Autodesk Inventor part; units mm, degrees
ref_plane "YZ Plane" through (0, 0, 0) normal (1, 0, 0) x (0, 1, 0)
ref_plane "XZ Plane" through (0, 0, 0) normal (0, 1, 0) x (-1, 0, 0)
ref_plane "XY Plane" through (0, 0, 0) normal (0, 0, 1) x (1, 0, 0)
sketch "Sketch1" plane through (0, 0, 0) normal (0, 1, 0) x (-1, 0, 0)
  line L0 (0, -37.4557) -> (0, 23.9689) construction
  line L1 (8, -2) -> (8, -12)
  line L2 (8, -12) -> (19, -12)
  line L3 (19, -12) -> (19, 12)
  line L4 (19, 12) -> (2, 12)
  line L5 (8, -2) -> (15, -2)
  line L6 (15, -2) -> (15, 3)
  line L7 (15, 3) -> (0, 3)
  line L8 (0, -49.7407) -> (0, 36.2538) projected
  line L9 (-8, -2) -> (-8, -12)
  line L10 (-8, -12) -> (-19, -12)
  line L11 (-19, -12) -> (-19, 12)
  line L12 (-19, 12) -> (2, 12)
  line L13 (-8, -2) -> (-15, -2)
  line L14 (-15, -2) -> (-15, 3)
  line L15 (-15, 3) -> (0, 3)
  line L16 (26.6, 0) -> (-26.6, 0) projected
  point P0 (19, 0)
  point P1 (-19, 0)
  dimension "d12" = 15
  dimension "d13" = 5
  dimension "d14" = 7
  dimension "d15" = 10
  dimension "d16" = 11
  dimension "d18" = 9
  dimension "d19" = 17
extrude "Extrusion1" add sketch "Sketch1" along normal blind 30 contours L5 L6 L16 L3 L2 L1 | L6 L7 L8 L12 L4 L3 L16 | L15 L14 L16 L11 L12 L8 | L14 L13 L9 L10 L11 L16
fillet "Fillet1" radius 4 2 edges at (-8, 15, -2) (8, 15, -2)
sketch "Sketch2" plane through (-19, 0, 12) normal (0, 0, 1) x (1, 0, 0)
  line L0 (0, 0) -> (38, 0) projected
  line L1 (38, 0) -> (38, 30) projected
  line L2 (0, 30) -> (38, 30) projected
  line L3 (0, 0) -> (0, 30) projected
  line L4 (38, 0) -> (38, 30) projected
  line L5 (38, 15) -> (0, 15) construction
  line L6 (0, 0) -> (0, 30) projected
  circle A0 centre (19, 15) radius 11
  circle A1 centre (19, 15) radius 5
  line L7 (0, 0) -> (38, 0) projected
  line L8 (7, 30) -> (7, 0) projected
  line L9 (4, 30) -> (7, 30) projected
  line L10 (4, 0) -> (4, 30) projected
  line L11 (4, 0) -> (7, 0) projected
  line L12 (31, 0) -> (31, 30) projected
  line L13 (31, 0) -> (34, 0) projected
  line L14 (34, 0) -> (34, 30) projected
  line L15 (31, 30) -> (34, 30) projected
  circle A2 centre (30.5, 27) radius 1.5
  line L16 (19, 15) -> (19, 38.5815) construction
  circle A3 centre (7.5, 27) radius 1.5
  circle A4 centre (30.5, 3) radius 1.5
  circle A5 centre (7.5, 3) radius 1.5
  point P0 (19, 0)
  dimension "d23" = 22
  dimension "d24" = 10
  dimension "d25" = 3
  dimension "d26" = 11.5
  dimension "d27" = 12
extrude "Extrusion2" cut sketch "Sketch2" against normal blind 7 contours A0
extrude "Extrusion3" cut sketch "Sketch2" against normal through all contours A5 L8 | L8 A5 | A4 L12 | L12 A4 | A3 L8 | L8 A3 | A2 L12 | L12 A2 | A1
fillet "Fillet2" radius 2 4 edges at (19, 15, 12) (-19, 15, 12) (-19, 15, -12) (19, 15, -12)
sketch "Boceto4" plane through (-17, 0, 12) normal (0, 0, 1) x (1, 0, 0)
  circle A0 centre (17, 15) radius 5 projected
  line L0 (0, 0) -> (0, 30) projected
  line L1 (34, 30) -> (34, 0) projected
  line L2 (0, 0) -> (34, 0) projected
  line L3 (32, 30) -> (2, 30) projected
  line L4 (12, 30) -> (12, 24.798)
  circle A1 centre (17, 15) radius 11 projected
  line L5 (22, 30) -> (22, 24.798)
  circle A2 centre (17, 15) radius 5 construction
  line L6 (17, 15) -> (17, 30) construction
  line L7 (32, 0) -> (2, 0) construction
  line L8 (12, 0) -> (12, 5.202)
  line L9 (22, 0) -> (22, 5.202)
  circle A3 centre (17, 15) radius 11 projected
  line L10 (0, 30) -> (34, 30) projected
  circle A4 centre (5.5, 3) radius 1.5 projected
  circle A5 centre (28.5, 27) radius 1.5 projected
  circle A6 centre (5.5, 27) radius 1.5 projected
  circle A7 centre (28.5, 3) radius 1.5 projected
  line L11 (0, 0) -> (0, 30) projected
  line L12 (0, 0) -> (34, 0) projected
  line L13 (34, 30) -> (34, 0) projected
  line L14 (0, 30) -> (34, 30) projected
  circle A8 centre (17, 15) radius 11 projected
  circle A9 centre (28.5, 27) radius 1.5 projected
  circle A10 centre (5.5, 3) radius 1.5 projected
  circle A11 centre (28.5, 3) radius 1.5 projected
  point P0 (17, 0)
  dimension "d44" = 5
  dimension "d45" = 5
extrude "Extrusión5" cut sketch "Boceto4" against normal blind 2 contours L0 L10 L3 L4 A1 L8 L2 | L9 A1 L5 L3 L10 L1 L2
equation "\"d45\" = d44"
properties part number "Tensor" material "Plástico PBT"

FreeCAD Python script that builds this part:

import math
import FreeCAD as App
import Part
import Sketcher

V = App.Vector


def edges_at(feature, points):
    """Names of the edges that pass closest to the given points."""
    edges = feature.Shape.Edges
    near = lambda p: min(range(len(edges)), key=lambda i: edges[i].distToShape(Part.Vertex(*p))[0])
    return sorted({f"Edge{near(p) + 1}" for p in points})


def add_polygon(sketch, points):
    """Adds a closed chain of lines whose ends are joined by coincident constraints."""
    first, n = sketch.GeometryCount, len(points)
    for a, b in zip(points, points[1:] + points[:1]):
        sketch.addGeometry(Part.LineSegment(App.Vector(*a, 0), App.Vector(*b, 0)), False)
    for i in range(n):
        sketch.addConstraint(Sketcher.Constraint("Coincident", first + i, 2, first + (i + 1) % n, 1))

doc = App.newDocument("Part")
params = doc.addObject("Spreadsheet::Sheet", "Params")
for row, (alias, value) in enumerate([
    ("sketch1_width", "7 mm"),
    ("sketch1_width2", "11 mm"),
    ("sketch1_height", "10 mm"),
    ("sketch1_height2", "5 mm"),
    ("pad1_length", "30 mm"),
    ("fillet_radius", "4 mm"),
    ("sketch2_diameter", "22 mm"),
    ("sketch2_diameter2", "10 mm"),
    ("pocket1_length", "7 mm"),
    ("sketch3_diameter", "3 mm"),
    ("sketch3_diameter2", "10 mm"),
    ("fillet2_radius", "2 mm"),
    ("sketch4_diameter", "3 mm"),
    ("sketch4_radius", "11 mm"),
    ("sketch4_width", "12 mm"),
    ("sketch4_height", "30 mm"),
    ("pocket3_length", "2 mm"),
], start=1):
    params.set(f"A{row}", alias)
    params.set(f"B{row}", "=" + value)
    params.setAlias(f"B{row}", alias)

body = doc.addObject("PartDesign::Body", "Body")

sketch1 = body.newObject("Sketcher::SketchObject", "Sketch")
sketch1.AttachmentSupport = (doc.getObject("XZ_Plane"), [""])
sketch1.MapMode = "FlatFace"
add_polygon(sketch1, [(-15, -2), (-8, -2), (-8, -12), (-19, -12), (-19, 12), (19, 12), (19, -12), (8, -12), (8, -2), (15, -2), (15, 3), (-15, 3)])
sketch1.addConstraint([
    Sketcher.Constraint("Horizontal", 0),
    Sketcher.Constraint("Vertical", 1),
    Sketcher.Constraint("Horizontal", 2),
    Sketcher.Constraint("Vertical", 3),
    Sketcher.Constraint("Horizontal", 4),
    Sketcher.Constraint("Vertical", 5),
    Sketcher.Constraint("Horizontal", 6),
    Sketcher.Constraint("Vertical", 7),
    Sketcher.Constraint("Horizontal", 8),
    Sketcher.Constraint("Vertical", 9),
    Sketcher.Constraint("Horizontal", 10),
    Sketcher.Constraint("Vertical", 11),
    Sketcher.Constraint("Symmetric", 2, 2, 4, 2, -1, 1),
    Sketcher.Constraint("Symmetric", 1, 2, 6, 2, -2),
    Sketcher.Constraint("Symmetric", 8, 2, 11, 2, -2),
    Sketcher.Constraint("DistanceX", 0, 1, 0, 2, 7.0),
    Sketcher.Constraint("DistanceX", 2, 2, 2, 1, 11.0),
    Sketcher.Constraint("DistanceY", 1, 2, 1, 1, 10.0),
    Sketcher.Constraint("DistanceY", 9, 1, 9, 2, 5.0),
    Sketcher.Constraint("DistanceX", -1, 1, 8, 2, 15.0),
    Sketcher.Constraint("DistanceY", 9, 2, 4, 2, 9.0),
])
sketch1.setExpression("Constraints[27]", "Params.sketch1_width")
sketch1.setExpression("Constraints[28]", "Params.sketch1_width2")
sketch1.setExpression("Constraints[29]", "Params.sketch1_height")
sketch1.setExpression("Constraints[30]", "Params.sketch1_height2")
pad1 = body.newObject("PartDesign::Pad", "Pad")
pad1.Profile = sketch1
pad1.setExpression("Length", "Params.pad1_length")
pad1.Reversed = True
doc.recompute()

fillet = body.newObject("PartDesign::Fillet", "Fillet")
fillet.Base = (pad1, edges_at(pad1, [(-8, 15, -2), (8, 15, -2)]))
fillet.setExpression("Radius", "Params.fillet_radius")

sketch2 = body.newObject("Sketcher::SketchObject", "Sketch001")
sketch2.AttachmentSupport = (doc.getObject("XY_Plane"), [""])
sketch2.MapMode = "FlatFace"
sketch2.AttachmentOffset = App.Placement(V(0, 0, 12), App.Rotation())
sketch2.addGeometry([
    Part.Circle(V(0, 15, 0), V(0, 0, 1), 11),
    Part.Circle(V(0, 15, 0), V(0, 0, 1), 5),
], False)
sketch2.addConstraint([
    Sketcher.Constraint("Coincident", 1, 3, 0, 3),
    Sketcher.Constraint("PointOnObject", 0, 3, -2),
    Sketcher.Constraint("Diameter", 0, 22.0),
    Sketcher.Constraint("Diameter", 1, 10.0),
    Sketcher.Constraint("DistanceY", -1, 1, 0, 3, 15.0),
])
sketch2.setExpression("Constraints[2]", "Params.sketch2_diameter")
sketch2.setExpression("Constraints[3]", "Params.sketch2_diameter2")
pocket1 = body.newObject("PartDesign::Pocket", "Pocket")
pocket1.Profile = sketch2
pocket1.setExpression("Length", "Params.pocket1_length")

sketch3 = body.newObject("Sketcher::SketchObject", "Sketch002")
sketch3.AttachmentSupport = (doc.getObject("XY_Plane"), [""])
sketch3.MapMode = "FlatFace"
sketch3.AttachmentOffset = App.Placement(V(0, 0, 12), App.Rotation())
sketch3.addGeometry([
    Part.Circle(V(-11.5, 3, 0), V(0, 0, 1), 1.5),
    Part.Circle(V(11.5, 3, 0), V(0, 0, 1), 1.5),
    Part.Circle(V(-11.5, 27, 0), V(0, 0, 1), 1.5),
    Part.Circle(V(11.5, 27, 0), V(0, 0, 1), 1.5),
    Part.Circle(V(0, 15, 0), V(0, 0, 1), 5),
], False)
sketch3.addConstraint([
    Sketcher.Constraint("Equal", 0, 1),
    Sketcher.Constraint("Equal", 1, 2),
    Sketcher.Constraint("Equal", 2, 3),
    Sketcher.Constraint("Symmetric", 0, 3, 1, 3, -2),
    Sketcher.Constraint("Symmetric", 2, 3, 3, 3, -2),
    Sketcher.Constraint("PointOnObject", 4, 3, -2),
    Sketcher.Constraint("Vertical", 0, 3, 2, 3),
    Sketcher.Constraint("Diameter", 0, 3.0),
    Sketcher.Constraint("Diameter", 4, 10.0),
    Sketcher.Constraint("DistanceY", -1, 1, 0, 3, 3.0),
    Sketcher.Constraint("DistanceY", 0, 3, 4, 3, 12.0),
    Sketcher.Constraint("DistanceY", 4, 3, 2, 3, 12.0),
    Sketcher.Constraint("DistanceX", 0, 3, -1, 1, 11.5),
])
sketch3.setExpression("Constraints[7]", "Params.sketch3_diameter")
sketch3.setExpression("Constraints[8]", "Params.sketch3_diameter2")
pocket2 = body.newObject("PartDesign::Pocket", "Pocket001")
pocket2.Profile = sketch3
pocket2.Type = "ThroughAll"
doc.recompute()

fillet2 = body.newObject("PartDesign::Fillet", "Fillet001")
fillet2.Base = (pocket2, edges_at(pocket2, [
    (19, 15, 12),
    (-19, 15, 12),
    (-19, 15, -12),
    (19, 15, -12),
]))
fillet2.setExpression("Radius", "Params.fillet2_radius")

sketch4 = body.newObject("Sketcher::SketchObject", "Sketch003")
sketch4.AttachmentSupport = (doc.getObject("XY_Plane"), [""])
sketch4.MapMode = "FlatFace"
sketch4.AttachmentOffset = App.Placement(V(0, 0, 12), App.Rotation())
sketch4.addGeometry([
    Part.LineSegment(V(-17, 30, 0), V(-17, 0, 0)),
    Part.LineSegment(V(-17, 0, 0), V(-5, 0, 0)),
    Part.LineSegment(V(-5, 0, 0), V(-5, 5.2, 0)),
    Part.ArcOfCircle(Part.Circle(V(0, 15, 0), V(0, 0, 1), 11), math.radians(117), math.radians(243)),
    Part.LineSegment(V(-5, 24.8, 0), V(-5, 30, 0)),
    Part.LineSegment(V(-5, 30, 0), V(-17, 30, 0)),
    Part.Circle(V(-11.5, 3, 0), V(0, 0, 1), 1.5),
    Part.Circle(V(-11.5, 27, 0), V(0, 0, 1), 1.5),
    Part.LineSegment(V(5, 5.2, 0), V(5, 0, 0)),
    Part.LineSegment(V(5, 0, 0), V(17, 0, 0)),
    Part.LineSegment(V(17, 0, 0), V(17, 30, 0)),
    Part.LineSegment(V(17, 30, 0), V(5, 30, 0)),
    Part.LineSegment(V(5, 30, 0), V(5, 24.8, 0)),
    Part.ArcOfCircle(Part.Circle(V(0, 15, 0), V(0, 0, 1), 11), math.radians(-63), math.radians(63)),
    Part.Circle(V(11.5, 3, 0), V(0, 0, 1), 1.5),
    Part.Circle(V(11.5, 27, 0), V(0, 0, 1), 1.5),
], False)
sketch4.addConstraint([
    Sketcher.Constraint("Coincident", 0, 2, 1, 1),
    Sketcher.Constraint("Coincident", 1, 2, 2, 1),
    Sketcher.Constraint("Coincident", 2, 2, 3, 2),
    Sketcher.Constraint("Coincident", 3, 1, 4, 1),
    Sketcher.Constraint("Coincident", 4, 2, 5, 1),
    Sketcher.Constraint("Coincident", 5, 2, 0, 1),
    Sketcher.Constraint("Coincident", 8, 2, 9, 1),
    Sketcher.Constraint("Coincident", 9, 2, 10, 1),
    Sketcher.Constraint("Coincident", 10, 2, 11, 1),
    Sketcher.Constraint("Coincident", 11, 2, 12, 1),
    Sketcher.Constraint("Coincident", 12, 2, 13, 2),
    Sketcher.Constraint("Coincident", 13, 1, 8, 1),
    Sketcher.Constraint("Vertical", 0),
    Sketcher.Constraint("Horizontal", 1),
    Sketcher.Constraint("Vertical", 2),
    Sketcher.Constraint("Vertical", 4),
    Sketcher.Constraint("Horizontal", 5),
    Sketcher.Constraint("Vertical", 8),
    Sketcher.Constraint("Horizontal", 9),
    Sketcher.Constraint("Vertical", 10),
    Sketcher.Constraint("Horizontal", 11),
    Sketcher.Constraint("Vertical", 12),
    Sketcher.Constraint("Coincident", 13, 3, 3, 3),
    Sketcher.Constraint("Equal", 6, 7),
    Sketcher.Constraint("Equal", 3, 13),
    Sketcher.Constraint("Equal", 7, 14),
    Sketcher.Constraint("Equal", 14, 15),
    Sketcher.Constraint("Symmetric", 1, 2, 8, 2, -1, 1),
    Sketcher.Constraint("Symmetric", 6, 3, 14, 3, -2),
    Sketcher.Constraint("Symmetric", 7, 3, 15, 3, -2),
    Sketcher.Constraint("Symmetric", 0, 2, 9, 2, -2),
    Sketcher.Constraint("Symmetric", 4, 2, 11, 2, -2),
    Sketcher.Constraint("PointOnObject", 3, 3, -2),
    Sketcher.Constraint("Vertical", 6, 3, 7, 3),
    Sketcher.Constraint("Vertical", 2, 2, 3, 1),
    Sketcher.Constraint("Equal", 2, 4),
    Sketcher.Constraint("Diameter", 6, 3.0),
    Sketcher.Constraint("DistanceX", 1, 2, -1, 1, 5.0),
    Sketcher.Constraint("Radius", 3, 11.0),
    Sketcher.Constraint("DistanceX", 1, 1, 1, 2, 12.0),
    Sketcher.Constraint("DistanceY", 0, 2, 0, 1, 30.0),
    Sketcher.Constraint("DistanceY", -1, 1, 6, 3, 3.0),
    Sketcher.Constraint("DistanceY", -1, 1, 7, 3, 27.0),
    Sketcher.Constraint("DistanceX", 6, 3, 14, 3, 23.0),
])
sketch4.setExpression("Constraints[36]", "Params.sketch4_diameter")
sketch4.setExpression("Constraints[38]", "Params.sketch4_radius")
sketch4.setExpression("Constraints[39]", "Params.sketch4_width")
sketch4.setExpression("Constraints[40]", "Params.sketch4_height")
pocket3 = body.newObject("PartDesign::Pocket", "Pocket002")
pocket3.Profile = sketch4
pocket3.setExpression("Length", "Params.pocket3_length")

doc.recompute()
